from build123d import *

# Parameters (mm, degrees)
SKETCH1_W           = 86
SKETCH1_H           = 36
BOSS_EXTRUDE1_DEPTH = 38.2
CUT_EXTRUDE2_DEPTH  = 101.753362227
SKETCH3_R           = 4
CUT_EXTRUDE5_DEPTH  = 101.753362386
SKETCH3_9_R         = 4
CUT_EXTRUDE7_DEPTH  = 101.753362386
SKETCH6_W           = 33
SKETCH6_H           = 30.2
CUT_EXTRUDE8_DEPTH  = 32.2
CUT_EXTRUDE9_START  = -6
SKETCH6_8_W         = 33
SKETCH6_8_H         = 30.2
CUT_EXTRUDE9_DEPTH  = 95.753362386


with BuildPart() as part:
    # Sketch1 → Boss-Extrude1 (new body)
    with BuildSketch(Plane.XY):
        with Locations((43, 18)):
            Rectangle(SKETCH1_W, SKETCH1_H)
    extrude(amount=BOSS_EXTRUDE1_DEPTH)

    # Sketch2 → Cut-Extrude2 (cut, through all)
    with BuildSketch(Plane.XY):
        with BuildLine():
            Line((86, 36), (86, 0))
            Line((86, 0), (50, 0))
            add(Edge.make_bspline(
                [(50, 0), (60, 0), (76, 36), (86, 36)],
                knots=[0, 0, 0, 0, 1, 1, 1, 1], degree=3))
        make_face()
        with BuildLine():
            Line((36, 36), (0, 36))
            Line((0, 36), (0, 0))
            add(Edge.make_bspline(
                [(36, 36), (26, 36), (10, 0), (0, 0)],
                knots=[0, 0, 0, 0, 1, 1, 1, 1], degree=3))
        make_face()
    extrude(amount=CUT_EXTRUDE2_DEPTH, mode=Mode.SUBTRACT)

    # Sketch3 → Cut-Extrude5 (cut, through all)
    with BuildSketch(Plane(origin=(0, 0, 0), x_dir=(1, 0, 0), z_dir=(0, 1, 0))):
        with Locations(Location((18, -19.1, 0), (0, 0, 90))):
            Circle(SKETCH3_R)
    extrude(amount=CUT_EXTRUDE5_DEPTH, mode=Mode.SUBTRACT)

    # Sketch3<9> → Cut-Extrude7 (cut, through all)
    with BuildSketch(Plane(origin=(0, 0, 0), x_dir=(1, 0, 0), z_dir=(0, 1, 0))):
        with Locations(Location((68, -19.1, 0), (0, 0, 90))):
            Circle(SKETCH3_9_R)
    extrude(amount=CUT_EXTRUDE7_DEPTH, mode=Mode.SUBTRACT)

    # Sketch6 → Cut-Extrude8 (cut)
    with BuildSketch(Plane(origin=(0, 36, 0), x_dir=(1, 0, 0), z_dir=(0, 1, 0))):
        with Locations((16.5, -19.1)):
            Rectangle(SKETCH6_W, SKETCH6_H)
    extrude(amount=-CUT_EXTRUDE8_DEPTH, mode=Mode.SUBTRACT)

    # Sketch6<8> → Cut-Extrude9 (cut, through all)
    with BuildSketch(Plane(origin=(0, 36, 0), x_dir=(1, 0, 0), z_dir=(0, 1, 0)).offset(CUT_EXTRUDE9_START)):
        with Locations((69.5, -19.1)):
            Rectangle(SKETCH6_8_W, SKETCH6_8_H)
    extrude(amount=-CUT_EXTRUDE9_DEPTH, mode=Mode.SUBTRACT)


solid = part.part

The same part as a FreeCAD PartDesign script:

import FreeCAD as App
import Part
import Sketcher
from FreeCAD import Vector
Q = App.Units.Quantity


def add_polygon(sketch, points):
    """Adds a closed chain of lines whose ends are joined by coincident constraints."""
    first, n = sketch.GeometryCount, len(points)
    for a, b in zip(points, points[1:] + points[:1]):
        sketch.addGeometry(Part.LineSegment(App.Vector(*a, 0), App.Vector(*b, 0)), False)
    for i in range(n):
        sketch.addConstraint(Sketcher.Constraint("Coincident", first + i, 2, first + (i + 1) % n, 1))

doc = App.newDocument("Part")
body = doc.addObject("PartDesign::Body", "Body")

# Sketch on XY plane
sketch1 = doc.addObject("Sketcher::SketchObject", "Sketch")
body.addObject(sketch1)
sketch1.AttachmentSupport = (doc.XY_Plane, [""])
sketch1.MapMode = "FlatFace"
add_polygon(sketch1, [(0, 36), (0, 0), (86, 0), (86, 36)])  # lines 0-3
sketch1.addConstraint(Sketcher.Constraint("Vertical", 0))
sketch1.addConstraint(Sketcher.Constraint("Horizontal", 1))
sketch1.addConstraint(Sketcher.Constraint("Vertical", 2))
sketch1.addConstraint(Sketcher.Constraint("Horizontal", 3))
sketch1.addConstraint(Sketcher.Constraint("Coincident", 0, 2, -1, 1))
sketch1.addConstraint(Sketcher.Constraint("DistanceX", 1, 1, 1, 2, Q("86 mm")))
sketch1.addConstraint(Sketcher.Constraint("DistanceY", 0, 2, 0, 1, Q("36 mm")))
pad1 = doc.addObject("PartDesign::Pad", "Pad")
body.addObject(pad1)
pad1.Profile = sketch1
pad1.Length = 38.2

# Sketch on XY plane
sketch2 = doc.addObject("Sketcher::SketchObject", "Sketch001")
body.addObject(sketch2)
sketch2.AttachmentSupport = (doc.XY_Plane, [""])
sketch2.MapMode = "FlatFace"
sketch2.addGeometry(Part.LineSegment(Vector(86, 0, 0), Vector(86, 36, 0)), False)
sketch2.addGeometry(Part.BSplineCurve([Vector(50, 0, 0), Vector(60, 0, 0), Vector(76, 36, 0), Vector(86, 36, 0)], [4, 4], [0, 1], False, 3, [1, 1, 1, 1], False), False)
sketch2.addGeometry(Part.LineSegment(Vector(50, 0, 0), Vector(86, 0, 0)), False)
sketch2.addGeometry(Part.LineSegment(Vector(36, 36, 0), Vector(0, 36, 0)), False)
sketch2.addGeometry(Part.LineSegment(Vector(0, 36, 0), Vector(0, 0, 0)), False)
sketch2.addGeometry(Part.BSplineCurve([Vector(36, 36, 0), Vector(26, 36, 0), Vector(10, 0, 0), Vector(0, 0, 0)], [4, 4], [0, 1], False, 3, [1, 1, 1, 1], False), False)
sketch2.addConstraint(Sketcher.Constraint("Block", 1))
sketch2.addConstraint(Sketcher.Constraint("Block", 5))
sketch2.addConstraint(Sketcher.Constraint("Coincident", 0, 2, 1, 2))
sketch2.addConstraint(Sketcher.Constraint("Coincident", 1, 1, 2, 1))
sketch2.addConstraint(Sketcher.Constraint("Coincident", 2, 2, 0, 1))
sketch2.addConstraint(Sketcher.Constraint("Coincident", 3, 2, 4, 1))
sketch2.addConstraint(Sketcher.Constraint("Coincident", 4, 2, 5, 2))
sketch2.addConstraint(Sketcher.Constraint("Coincident", 5, 1, 3, 1))
sketch2.addConstraint(Sketcher.Constraint("Vertical", 0))
sketch2.addConstraint(Sketcher.Constraint("Horizontal", 2))
sketch2.addConstraint(Sketcher.Constraint("Horizontal", 3))
sketch2.addConstraint(Sketcher.Constraint("Vertical", 4))
pocket1 = doc.addObject("PartDesign::Pocket", "Pocket")
body.addObject(pocket1)
pocket1.Profile = sketch2
pocket1.Type = "ThroughAll"
pocket1.Reversed = True

# Sketch on XZ plane
sketch3 = doc.addObject("Sketcher::SketchObject", "Sketch002")
body.addObject(sketch3)
sketch3.AttachmentSupport = (doc.XZ_Plane, [""])
sketch3.MapMode = "FlatFace"
sketch3.addGeometry(Part.Circle(Vector(18, 19.1, 0), Vector(0, 0, 1), 4), False)
sketch3.addConstraint(Sketcher.Constraint("Diameter", 0, Q("8 mm")))
sketch3.addConstraint(Sketcher.Constraint("DistanceX", -1, 1, 0, 3, Q("18 mm")))
sketch3.addConstraint(Sketcher.Constraint("DistanceY", -1, 1, 0, 3, Q("19.1 mm")))
pocket2 = doc.addObject("PartDesign::Pocket", "Pocket001")
body.addObject(pocket2)
pocket2.Profile = sketch3
pocket2.Type = "ThroughAll"

# Sketch on XZ plane
sketch4 = doc.addObject("Sketcher::SketchObject", "Sketch003")
body.addObject(sketch4)
sketch4.AttachmentSupport = (doc.XZ_Plane, [""])
sketch4.MapMode = "FlatFace"
sketch4.addGeometry(Part.Circle(Vector(68, 19.1, 0), Vector(0, 0, 1), 4), False)
sketch4.addConstraint(Sketcher.Constraint("Diameter", 0, Q("8 mm")))
sketch4.addConstraint(Sketcher.Constraint("DistanceX", -1, 1, 0, 3, Q("68 mm")))
sketch4.addConstraint(Sketcher.Constraint("DistanceY", -1, 1, 0, 3, Q("19.1 mm")))
pocket3 = doc.addObject("PartDesign::Pocket", "Pocket002")
body.addObject(pocket3)
pocket3.Profile = sketch4
pocket3.Type = "ThroughAll"

# Sketch on XZ plane
sketch5 = doc.addObject("Sketcher::SketchObject", "Sketch004")
body.addObject(sketch5)
sketch5.AttachmentSupport = (doc.XZ_Plane, [""])
sketch5.MapMode = "FlatFace"
sketch5.AttachmentOffset = App.Placement(Vector(0, 0, -36), App.Rotation())
add_polygon(sketch5, [(0, 4), (0, 34), (33, 34), (33, 4)])  # lines 0-3
sketch5.addConstraint(Sketcher.Constraint("Vertical", 0))
sketch5.addConstraint(Sketcher.Constraint("Horizontal", 1))
sketch5.addConstraint(Sketcher.Constraint("Vertical", 2))
sketch5.addConstraint(Sketcher.Constraint("Horizontal", 3))
sketch5.addConstraint(Sketcher.Constraint("PointOnObject", 0, 2, -2))
sketch5.addConstraint(Sketcher.Constraint("DistanceX", 1, 1, 1, 2, Q("33 mm")))
sketch5.addConstraint(Sketcher.Constraint("DistanceY", 0, 1, 0, 2, Q("30.2 mm")))
sketch5.addConstraint(Sketcher.Constraint("DistanceY", -1, 1, 2, 2, Q("4 mm")))
pocket4 = doc.addObject("PartDesign::Pocket", "Pocket003")
body.addObject(pocket4)
pocket4.Profile = sketch5
pocket4.Length = 32.2
pocket4.Reversed = True

# Sketch on XZ plane
sketch6 = doc.addObject("Sketcher::SketchObject", "Sketch005")
body.addObject(sketch6)
sketch6.AttachmentSupport = (doc.XZ_Plane, [""])
sketch6.MapMode = "FlatFace"
sketch6.AttachmentOffset = App.Placement(Vector(0, 0, -30), App.Rotation())
add_polygon(sketch6, [(53, 4), (53, 34), (86, 34), (86, 4)])  # lines 0-3
sketch6.addConstraint(Sketcher.Constraint("Vertical", 0))
sketch6.addConstraint(Sketcher.Constraint("Horizontal", 1))
sketch6.addConstraint(Sketcher.Constraint("Vertical", 2))
sketch6.addConstraint(Sketcher.Constraint("Horizontal", 3))
sketch6.addConstraint(Sketcher.Constraint("DistanceX", 1, 1, 1, 2, Q("33 mm")))
sketch6.addConstraint(Sketcher.Constraint("DistanceY", 0, 1, 0, 2, Q("30.2 mm")))
sketch6.addConstraint(Sketcher.Constraint("DistanceX", -1, 1, 0, 2, Q("53 mm")))
sketch6.addConstraint(Sketcher.Constraint("DistanceY", -1, 1, 2, 2, Q("4 mm")))
pocket5 = doc.addObject("PartDesign::Pocket", "Pocket004")
body.addObject(pocket5)
pocket5.Profile = sketch6
pocket5.Type = "ThroughAll"
pocket5.Reversed = True

doc.recompute()
